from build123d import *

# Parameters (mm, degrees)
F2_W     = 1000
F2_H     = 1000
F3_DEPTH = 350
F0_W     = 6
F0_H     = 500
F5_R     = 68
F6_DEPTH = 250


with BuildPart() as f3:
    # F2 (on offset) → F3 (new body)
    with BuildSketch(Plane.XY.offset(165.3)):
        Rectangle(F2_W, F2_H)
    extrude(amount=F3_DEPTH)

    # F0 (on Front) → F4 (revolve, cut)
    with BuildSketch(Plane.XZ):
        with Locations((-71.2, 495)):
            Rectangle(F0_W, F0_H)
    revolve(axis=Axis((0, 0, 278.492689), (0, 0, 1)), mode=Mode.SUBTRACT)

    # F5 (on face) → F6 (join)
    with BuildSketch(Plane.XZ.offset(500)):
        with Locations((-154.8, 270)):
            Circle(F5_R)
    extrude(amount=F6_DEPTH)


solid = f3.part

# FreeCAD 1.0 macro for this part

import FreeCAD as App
import Part
import Sketcher
from FreeCAD import Vector


def add_polygon(sketch, points):
    """Adds a closed chain of lines whose ends are joined by coincident constraints."""
    first, n = sketch.GeometryCount, len(points)
    for a, b in zip(points, points[1:] + points[:1]):
        sketch.addGeometry(Part.LineSegment(App.Vector(*a, 0), App.Vector(*b, 0)), False)
    for i in range(n):
        sketch.addConstraint(Sketcher.Constraint("Coincident", first + i, 2, first + (i + 1) % n, 1))

doc = App.newDocument("Part")
params = doc.addObject("Spreadsheet::Sheet", "Params")
for row, (alias, value) in enumerate([
    ("sketch1_width", "1000 mm"),
    ("pad1_length", "350 mm"),
    ("sketch2_width", "6 mm"),
    ("sketch2_height", "500 mm"),
    ("groove_angle", "360 deg"),
    ("sketch3_diameter", "136 mm"),
    ("pad2_length", "250 mm"),
], start=1):
    params.set(f"A{row}", alias)
    params.set(f"B{row}", "=" + value)
    params.setAlias(f"B{row}", alias)

body = doc.addObject("PartDesign::Body", "Body")

sketch1 = doc.addObject("Sketcher::SketchObject", "Sketch")
body.addObject(sketch1)
sketch1.AttachmentSupport = (doc.XY_Plane, [""])
sketch1.MapMode = "FlatFace"
sketch1.AttachmentOffset = App.Placement(Vector(0, 0, 165.3), App.Rotation())
add_polygon(sketch1, [(-500, 500), (-500, -500), (500, -500), (500, 500)])
sketch1.addConstraint([
    Sketcher.Constraint("Vertical", 0),
    Sketcher.Constraint("Horizontal", 1),
    Sketcher.Constraint("Vertical", 2),
    Sketcher.Constraint("Horizontal", 3),
    Sketcher.Constraint("Symmetric", 0, 2, 2, 2, -1, 1),
    Sketcher.Constraint("Equal", 3, 0),
    Sketcher.Constraint("DistanceX", 1, 1, 1, 2, 1000.0),
])
sketch1.setExpression("Constraints[10]", "Params.sketch1_width")
pad1 = doc.addObject("PartDesign::Pad", "Pad")
body.addObject(pad1)
pad1.Profile = sketch1
pad1.setExpression("Length", "Params.pad1_length")

sketch2 = doc.addObject("Sketcher::SketchObject", "Sketch001")
body.addObject(sketch2)
sketch2.AttachmentSupport = (doc.XZ_Plane, [""])
sketch2.MapMode = "FlatFace"
add_polygon(sketch2, [(-74, 745), (-74, 245), (-68, 245), (-68, 745)])
sketch2.addConstraint([
    Sketcher.Constraint("Vertical", 0),
    Sketcher.Constraint("Horizontal", 1),
    Sketcher.Constraint("Vertical", 2),
    Sketcher.Constraint("Horizontal", 3),
    Sketcher.Constraint("DistanceX", 1, 1, 1, 2, 6.0),
    Sketcher.Constraint("DistanceY", 0, 2, 0, 1, 500.0),
    Sketcher.Constraint("DistanceY", -1, 1, 0, 2, 245.0),
    Sketcher.Constraint("DistanceX", 0, 2, -1, 1, 74.2),
])
sketch2.setExpression("Constraints[8]", "Params.sketch2_width")
sketch2.setExpression("Constraints[9]", "Params.sketch2_height")
groove = doc.addObject("PartDesign::Groove", "Groove")
body.addObject(groove)
groove.Profile = sketch2
groove.ReferenceAxis = (sketch2, ["V_Axis"])
groove.setExpression("Angle", "Params.groove_angle")

sketch3 = doc.addObject("Sketcher::SketchObject", "Sketch002")
body.addObject(sketch3)
sketch3.AttachmentSupport = (doc.XZ_Plane, [""])
sketch3.MapMode = "FlatFace"
sketch3.AttachmentOffset = App.Placement(Vector(0, 0, 500), App.Rotation())
sketch3.addGeometry(Part.Circle(Vector(-155, 270, 0), Vector(0, 0, 1), 68), False)
sketch3.addConstraint([
    Sketcher.Constraint("Diameter", 0, 136.0),
    Sketcher.Constraint("DistanceY", -1, 1, 0, 3, 270.0),
    Sketcher.Constraint("DistanceX", 0, 3, -1, 1, 154.8),
])
sketch3.setExpression("Constraints[0]", "Params.sketch3_diameter")
pad2 = doc.addObject("PartDesign::Pad", "Pad001")
body.addObject(pad2)
pad2.Profile = sketch3
pad2.setExpression("Length", "Params.pad2_length")

doc.recompute()
